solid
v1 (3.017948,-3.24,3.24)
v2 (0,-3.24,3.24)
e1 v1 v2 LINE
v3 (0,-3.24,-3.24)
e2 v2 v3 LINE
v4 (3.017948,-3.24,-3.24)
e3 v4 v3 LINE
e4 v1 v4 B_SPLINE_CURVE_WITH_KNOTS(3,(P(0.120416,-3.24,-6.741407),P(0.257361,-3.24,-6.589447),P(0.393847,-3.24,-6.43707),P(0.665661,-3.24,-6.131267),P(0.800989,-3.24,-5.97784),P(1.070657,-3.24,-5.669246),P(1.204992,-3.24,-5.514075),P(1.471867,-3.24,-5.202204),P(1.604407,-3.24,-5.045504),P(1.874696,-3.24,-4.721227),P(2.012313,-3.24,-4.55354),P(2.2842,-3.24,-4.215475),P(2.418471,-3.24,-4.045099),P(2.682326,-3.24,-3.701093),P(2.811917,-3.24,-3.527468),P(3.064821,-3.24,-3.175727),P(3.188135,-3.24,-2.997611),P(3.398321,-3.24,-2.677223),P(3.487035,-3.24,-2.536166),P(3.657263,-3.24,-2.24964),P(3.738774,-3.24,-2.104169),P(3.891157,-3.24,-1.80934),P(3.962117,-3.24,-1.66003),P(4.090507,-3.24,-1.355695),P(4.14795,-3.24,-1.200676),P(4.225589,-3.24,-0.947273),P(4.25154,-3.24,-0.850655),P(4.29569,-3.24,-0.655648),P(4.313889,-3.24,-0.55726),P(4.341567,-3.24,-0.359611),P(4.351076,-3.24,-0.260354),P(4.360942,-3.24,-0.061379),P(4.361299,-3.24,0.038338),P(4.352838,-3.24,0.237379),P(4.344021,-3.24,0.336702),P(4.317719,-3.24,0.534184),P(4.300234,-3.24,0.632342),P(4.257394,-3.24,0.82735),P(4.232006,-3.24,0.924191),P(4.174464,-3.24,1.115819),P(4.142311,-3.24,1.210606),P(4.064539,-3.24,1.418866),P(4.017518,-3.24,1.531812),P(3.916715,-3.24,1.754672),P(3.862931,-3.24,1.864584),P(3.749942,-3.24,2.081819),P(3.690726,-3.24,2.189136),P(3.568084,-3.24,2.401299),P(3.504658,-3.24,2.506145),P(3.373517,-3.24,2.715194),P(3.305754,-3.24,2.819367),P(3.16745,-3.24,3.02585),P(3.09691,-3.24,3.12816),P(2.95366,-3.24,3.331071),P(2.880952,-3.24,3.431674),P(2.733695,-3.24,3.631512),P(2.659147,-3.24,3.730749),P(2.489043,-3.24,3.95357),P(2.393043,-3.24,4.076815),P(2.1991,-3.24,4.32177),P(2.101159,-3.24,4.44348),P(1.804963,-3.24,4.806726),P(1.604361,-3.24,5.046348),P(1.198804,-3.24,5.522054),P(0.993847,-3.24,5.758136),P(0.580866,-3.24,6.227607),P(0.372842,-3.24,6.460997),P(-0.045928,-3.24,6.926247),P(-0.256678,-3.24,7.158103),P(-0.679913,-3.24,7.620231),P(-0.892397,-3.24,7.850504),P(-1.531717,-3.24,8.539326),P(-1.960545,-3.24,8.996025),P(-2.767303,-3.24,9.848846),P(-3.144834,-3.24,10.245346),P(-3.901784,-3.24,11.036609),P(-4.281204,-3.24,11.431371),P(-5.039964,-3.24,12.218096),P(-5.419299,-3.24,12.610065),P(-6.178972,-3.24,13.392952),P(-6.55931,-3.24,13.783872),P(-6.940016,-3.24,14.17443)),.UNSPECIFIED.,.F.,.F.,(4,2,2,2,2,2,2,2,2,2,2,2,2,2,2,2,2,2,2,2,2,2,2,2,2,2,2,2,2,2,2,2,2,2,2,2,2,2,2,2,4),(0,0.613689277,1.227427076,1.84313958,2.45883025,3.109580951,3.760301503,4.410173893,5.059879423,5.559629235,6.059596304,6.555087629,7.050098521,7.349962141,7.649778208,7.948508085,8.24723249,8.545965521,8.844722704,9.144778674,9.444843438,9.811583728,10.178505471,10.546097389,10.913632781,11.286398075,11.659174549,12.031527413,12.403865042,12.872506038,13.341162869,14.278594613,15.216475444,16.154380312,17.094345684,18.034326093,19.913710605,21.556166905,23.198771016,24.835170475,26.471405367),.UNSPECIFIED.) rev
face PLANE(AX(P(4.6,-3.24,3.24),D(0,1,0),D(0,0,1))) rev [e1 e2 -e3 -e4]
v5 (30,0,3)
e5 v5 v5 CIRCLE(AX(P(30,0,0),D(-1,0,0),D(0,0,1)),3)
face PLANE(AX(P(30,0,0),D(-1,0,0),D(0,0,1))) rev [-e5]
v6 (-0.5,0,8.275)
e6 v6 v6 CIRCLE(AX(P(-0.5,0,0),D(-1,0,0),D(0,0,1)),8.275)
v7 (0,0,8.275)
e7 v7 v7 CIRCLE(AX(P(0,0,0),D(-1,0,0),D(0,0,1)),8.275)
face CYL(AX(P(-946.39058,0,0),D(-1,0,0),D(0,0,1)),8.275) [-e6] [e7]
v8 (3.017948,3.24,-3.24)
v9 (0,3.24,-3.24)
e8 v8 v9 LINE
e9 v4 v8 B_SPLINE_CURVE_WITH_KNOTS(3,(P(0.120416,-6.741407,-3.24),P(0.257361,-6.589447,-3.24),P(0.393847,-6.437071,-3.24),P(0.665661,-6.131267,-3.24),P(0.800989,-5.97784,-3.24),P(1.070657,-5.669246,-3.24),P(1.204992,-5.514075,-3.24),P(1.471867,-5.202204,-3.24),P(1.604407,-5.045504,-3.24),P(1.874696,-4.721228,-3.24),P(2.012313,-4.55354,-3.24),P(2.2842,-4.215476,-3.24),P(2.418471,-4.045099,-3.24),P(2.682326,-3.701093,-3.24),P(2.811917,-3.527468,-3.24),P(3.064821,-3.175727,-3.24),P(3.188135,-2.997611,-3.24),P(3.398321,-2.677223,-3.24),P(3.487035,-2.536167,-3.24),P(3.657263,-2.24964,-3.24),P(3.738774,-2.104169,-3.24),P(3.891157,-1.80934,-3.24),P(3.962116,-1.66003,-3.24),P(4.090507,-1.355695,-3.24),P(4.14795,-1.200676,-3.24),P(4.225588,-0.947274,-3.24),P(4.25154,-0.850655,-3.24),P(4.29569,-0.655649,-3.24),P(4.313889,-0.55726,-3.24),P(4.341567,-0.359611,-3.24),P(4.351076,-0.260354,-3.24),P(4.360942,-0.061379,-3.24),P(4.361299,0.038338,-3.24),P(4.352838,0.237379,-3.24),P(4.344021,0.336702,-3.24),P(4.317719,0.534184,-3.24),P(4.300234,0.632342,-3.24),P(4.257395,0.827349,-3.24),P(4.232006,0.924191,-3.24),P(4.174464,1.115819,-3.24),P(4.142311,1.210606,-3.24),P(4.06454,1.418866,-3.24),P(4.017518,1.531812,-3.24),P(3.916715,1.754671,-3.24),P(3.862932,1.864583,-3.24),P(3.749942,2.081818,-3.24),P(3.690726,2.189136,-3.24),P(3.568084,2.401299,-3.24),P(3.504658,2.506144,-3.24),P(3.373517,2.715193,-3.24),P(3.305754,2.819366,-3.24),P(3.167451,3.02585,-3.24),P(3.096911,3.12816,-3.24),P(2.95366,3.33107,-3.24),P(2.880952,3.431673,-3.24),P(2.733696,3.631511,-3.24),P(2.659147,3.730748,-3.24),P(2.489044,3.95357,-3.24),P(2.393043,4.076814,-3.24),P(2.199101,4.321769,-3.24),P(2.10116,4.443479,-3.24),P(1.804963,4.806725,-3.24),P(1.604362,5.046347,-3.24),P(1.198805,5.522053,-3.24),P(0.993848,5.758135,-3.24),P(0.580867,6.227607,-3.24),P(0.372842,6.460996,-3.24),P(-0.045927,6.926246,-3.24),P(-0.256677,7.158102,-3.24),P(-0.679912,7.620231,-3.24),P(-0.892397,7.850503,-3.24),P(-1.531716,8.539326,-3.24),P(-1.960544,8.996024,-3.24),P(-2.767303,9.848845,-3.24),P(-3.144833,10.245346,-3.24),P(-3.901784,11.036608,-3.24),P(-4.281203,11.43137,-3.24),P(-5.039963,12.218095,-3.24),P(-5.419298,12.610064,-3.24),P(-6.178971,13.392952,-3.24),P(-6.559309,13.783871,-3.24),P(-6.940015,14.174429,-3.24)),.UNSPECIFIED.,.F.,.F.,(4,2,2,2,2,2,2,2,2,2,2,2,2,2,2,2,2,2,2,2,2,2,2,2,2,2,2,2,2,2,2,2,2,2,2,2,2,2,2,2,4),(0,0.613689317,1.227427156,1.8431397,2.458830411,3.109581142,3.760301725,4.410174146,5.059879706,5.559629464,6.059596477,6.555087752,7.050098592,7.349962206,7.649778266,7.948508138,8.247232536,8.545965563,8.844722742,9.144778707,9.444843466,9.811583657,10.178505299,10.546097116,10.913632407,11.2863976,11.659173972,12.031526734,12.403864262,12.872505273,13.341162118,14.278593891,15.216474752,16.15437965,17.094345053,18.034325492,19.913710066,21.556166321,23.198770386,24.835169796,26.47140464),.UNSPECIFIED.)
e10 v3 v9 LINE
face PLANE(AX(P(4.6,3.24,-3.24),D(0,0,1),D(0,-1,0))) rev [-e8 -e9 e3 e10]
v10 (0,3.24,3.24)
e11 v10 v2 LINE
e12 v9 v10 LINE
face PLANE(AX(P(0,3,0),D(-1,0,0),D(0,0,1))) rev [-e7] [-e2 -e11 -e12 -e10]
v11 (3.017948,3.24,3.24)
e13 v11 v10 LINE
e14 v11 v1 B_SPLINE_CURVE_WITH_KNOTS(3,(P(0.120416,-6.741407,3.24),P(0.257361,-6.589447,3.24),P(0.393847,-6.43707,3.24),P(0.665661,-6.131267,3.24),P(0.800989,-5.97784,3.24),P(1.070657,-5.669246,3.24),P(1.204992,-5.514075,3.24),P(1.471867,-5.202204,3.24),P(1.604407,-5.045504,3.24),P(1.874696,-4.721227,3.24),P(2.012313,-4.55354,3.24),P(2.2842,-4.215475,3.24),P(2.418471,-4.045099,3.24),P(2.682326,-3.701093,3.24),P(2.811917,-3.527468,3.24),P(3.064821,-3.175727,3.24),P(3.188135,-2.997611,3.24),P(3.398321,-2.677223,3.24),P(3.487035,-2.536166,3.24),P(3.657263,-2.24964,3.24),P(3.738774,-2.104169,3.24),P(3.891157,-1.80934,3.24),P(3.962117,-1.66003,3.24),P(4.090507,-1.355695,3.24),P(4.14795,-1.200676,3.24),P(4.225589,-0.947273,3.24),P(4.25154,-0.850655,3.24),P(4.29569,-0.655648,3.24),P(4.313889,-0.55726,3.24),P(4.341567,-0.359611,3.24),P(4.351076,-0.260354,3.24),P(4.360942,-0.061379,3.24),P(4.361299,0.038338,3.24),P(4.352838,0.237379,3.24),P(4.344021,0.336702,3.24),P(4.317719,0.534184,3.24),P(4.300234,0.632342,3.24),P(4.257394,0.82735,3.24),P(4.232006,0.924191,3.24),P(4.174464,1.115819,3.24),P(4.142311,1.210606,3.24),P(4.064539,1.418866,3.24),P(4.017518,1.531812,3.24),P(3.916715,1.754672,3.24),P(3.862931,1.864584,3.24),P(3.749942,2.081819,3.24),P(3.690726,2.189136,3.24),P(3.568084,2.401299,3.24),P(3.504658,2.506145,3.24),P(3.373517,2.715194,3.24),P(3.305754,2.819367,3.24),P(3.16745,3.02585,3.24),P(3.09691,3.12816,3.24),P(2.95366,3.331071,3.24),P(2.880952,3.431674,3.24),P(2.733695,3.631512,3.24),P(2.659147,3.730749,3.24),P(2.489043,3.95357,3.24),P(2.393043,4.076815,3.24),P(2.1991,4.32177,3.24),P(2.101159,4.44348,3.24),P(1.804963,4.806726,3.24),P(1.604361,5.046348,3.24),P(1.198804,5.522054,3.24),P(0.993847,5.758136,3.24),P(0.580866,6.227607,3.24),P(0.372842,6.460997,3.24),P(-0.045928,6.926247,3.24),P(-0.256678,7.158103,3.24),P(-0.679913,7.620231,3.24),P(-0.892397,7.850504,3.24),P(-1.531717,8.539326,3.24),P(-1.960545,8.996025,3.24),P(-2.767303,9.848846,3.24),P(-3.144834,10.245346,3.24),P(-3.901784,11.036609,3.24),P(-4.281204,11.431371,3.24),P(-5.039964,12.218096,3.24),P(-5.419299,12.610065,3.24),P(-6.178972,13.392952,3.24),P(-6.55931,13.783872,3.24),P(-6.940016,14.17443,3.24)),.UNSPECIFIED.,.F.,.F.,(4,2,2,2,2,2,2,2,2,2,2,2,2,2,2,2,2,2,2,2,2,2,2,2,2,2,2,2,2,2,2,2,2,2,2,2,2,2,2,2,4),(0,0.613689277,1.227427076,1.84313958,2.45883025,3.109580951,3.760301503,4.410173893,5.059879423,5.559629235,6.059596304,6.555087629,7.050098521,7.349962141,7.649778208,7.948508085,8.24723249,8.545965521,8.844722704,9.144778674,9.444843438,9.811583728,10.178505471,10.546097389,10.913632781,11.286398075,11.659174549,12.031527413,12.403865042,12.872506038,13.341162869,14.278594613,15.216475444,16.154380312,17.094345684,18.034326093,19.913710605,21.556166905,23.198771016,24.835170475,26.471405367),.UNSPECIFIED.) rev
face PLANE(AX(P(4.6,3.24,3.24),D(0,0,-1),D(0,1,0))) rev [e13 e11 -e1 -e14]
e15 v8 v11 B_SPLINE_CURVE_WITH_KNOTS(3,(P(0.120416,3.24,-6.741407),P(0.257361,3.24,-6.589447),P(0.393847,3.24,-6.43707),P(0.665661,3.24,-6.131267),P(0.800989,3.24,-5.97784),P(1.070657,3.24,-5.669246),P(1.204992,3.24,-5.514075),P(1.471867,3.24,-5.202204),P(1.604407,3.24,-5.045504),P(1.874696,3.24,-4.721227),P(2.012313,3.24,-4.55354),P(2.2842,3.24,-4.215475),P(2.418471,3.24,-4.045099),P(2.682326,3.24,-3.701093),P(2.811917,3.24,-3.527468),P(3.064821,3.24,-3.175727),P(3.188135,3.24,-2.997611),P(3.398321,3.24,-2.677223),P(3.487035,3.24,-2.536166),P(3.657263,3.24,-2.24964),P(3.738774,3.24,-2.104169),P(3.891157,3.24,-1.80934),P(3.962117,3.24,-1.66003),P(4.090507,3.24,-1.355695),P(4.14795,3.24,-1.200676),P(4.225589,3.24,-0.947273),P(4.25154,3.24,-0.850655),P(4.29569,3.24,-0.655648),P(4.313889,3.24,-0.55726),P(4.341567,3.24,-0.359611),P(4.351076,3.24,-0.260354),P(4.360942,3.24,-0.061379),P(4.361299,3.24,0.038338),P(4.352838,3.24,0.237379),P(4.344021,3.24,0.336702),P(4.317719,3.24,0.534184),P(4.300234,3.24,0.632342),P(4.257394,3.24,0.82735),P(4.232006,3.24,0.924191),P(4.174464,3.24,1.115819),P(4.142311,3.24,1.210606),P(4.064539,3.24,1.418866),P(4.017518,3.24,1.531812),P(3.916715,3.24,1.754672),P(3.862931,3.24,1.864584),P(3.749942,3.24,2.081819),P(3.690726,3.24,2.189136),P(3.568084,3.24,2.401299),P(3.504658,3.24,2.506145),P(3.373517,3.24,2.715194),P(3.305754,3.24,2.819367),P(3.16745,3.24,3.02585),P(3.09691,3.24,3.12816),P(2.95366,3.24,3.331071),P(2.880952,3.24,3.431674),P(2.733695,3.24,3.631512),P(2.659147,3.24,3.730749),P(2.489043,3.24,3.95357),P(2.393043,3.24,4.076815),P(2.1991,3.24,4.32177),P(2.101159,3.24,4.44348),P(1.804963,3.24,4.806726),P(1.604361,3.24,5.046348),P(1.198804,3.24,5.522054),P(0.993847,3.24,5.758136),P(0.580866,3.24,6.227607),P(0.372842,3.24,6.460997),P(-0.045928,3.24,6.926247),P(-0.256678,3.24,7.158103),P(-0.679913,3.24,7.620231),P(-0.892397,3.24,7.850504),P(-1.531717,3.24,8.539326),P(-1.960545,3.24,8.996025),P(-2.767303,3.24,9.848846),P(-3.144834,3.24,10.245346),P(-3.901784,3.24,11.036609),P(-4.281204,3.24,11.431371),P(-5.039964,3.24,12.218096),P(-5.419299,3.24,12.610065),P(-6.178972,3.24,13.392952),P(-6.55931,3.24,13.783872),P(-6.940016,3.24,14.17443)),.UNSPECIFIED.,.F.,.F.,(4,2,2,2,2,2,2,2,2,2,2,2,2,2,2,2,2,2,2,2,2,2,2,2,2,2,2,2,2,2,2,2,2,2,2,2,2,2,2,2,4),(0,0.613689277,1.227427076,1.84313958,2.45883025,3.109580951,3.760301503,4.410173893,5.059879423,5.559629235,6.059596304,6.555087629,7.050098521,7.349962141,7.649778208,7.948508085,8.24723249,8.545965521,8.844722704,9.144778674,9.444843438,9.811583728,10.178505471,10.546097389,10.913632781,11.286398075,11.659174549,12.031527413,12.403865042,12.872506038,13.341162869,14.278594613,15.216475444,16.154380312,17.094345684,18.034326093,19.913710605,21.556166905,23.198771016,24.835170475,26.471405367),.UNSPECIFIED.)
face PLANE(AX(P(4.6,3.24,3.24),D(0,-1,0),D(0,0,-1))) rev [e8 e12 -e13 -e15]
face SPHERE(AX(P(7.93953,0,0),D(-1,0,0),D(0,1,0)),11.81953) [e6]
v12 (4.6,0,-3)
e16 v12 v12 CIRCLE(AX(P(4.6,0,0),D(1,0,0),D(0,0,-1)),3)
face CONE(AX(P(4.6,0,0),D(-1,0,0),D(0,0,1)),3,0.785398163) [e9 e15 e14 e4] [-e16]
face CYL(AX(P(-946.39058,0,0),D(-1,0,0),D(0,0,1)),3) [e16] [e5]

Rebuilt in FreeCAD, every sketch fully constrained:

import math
import FreeCAD as App
import Part
import Sketcher
from FreeCAD import Vector


def add_polygon(sketch, points):
    """Adds a closed chain of lines whose ends are joined by coincident constraints."""
    first, n = sketch.GeometryCount, len(points)
    for a, b in zip(points, points[1:] + points[:1]):
        sketch.addGeometry(Part.LineSegment(App.Vector(*a, 0), App.Vector(*b, 0)), False)
    for i in range(n):
        sketch.addConstraint(Sketcher.Constraint("Coincident", first + i, 2, first + (i + 1) % n, 1))

doc = App.newDocument("Part")
body = doc.addObject("PartDesign::Body", "Body")

# Sketch on XY plane
sketch1 = body.newObject("Sketcher::SketchObject", "Sketch")
sketch1.AttachmentSupport = (doc.getObject("XY_Plane"), [""])
sketch1.MapMode = "FlatFace"
sketch1.addGeometry([
    Part.LineSegment(Vector(-3.9, 0, 0), Vector(30, 0, 0)),  # 0
    Part.LineSegment(Vector(30, 0, 0), Vector(30, 3, 0)),  # 1
    Part.LineSegment(Vector(30, 3, 0), Vector(0, 3, 0)),  # 2
    Part.LineSegment(Vector(0, 3, 0), Vector(0, 8.3, 0)),  # 3
    Part.LineSegment(Vector(0, 8.3, 0), Vector(-0.5, 8.3, 0)),  # 4
    Part.ArcOfCircle(Part.Circle(Vector(7.9, 0, 0), Vector(0, 0, 1), 11.8), math.radians(136), math.radians(180)),  # 5
], False)
sketch1.addConstraint([
    Sketcher.Constraint("Coincident", 0, 2, 1, 1),
    Sketcher.Constraint("Coincident", 1, 2, 2, 1),
    Sketcher.Constraint("Coincident", 2, 2, 3, 1),
    Sketcher.Constraint("Coincident", 3, 2, 4, 1),
    Sketcher.Constraint("Coincident", 4, 2, 5, 1),
    Sketcher.Constraint("Coincident", 5, 2, 0, 1),
    Sketcher.Constraint("Horizontal", 0),
    Sketcher.Constraint("Vertical", 1),
    Sketcher.Constraint("Horizontal", 2),
    Sketcher.Constraint("Vertical", 3),
    Sketcher.Constraint("Horizontal", 4),
    Sketcher.Constraint("PointOnObject", 5, 3, -1),
    Sketcher.Constraint("PointOnObject", 0, 2, -1),
    Sketcher.Constraint("PointOnObject", 2, 2, -2),
    Sketcher.Constraint("DistanceX", 2, 2, 2, 1, 30.0),
    Sketcher.Constraint("DistanceY", 1, 1, 1, 2, 3.0),
    Sketcher.Constraint("DistanceX", 4, 2, 4, 1, 0.5),
    Sketcher.Constraint("DistanceX", 0, 1, 0, 2, 33.88),
    Sketcher.Constraint("DistanceY", 3, 1, 3, 2, 5.275),
])
revolution = body.newObject("PartDesign::Revolution", "Revolution")
revolution.Profile = sketch1
revolution.ReferenceAxis = (sketch1, ["H_Axis"])
revolution.Angle = 360

# Sketch on YZ plane
sketch2 = body.newObject("Sketcher::SketchObject", "Sketch001")
sketch2.AttachmentSupport = (doc.getObject("YZ_Plane"), [""])
sketch2.MapMode = "FlatFace"
add_polygon(sketch2, [(3, 3), (-3, 3), (-3, -3), (3, -3)])  # lines 0-3
sketch2.addConstraint([
    Sketcher.Constraint("Horizontal", 0),
    Sketcher.Constraint("Vertical", 1),
    Sketcher.Constraint("Horizontal", 2),
    Sketcher.Constraint("Vertical", 3),
    Sketcher.Constraint("Symmetric", 0, 2, 2, 2, -1, 1),
    Sketcher.Constraint("Equal", 2, 1),
    Sketcher.Constraint("DistanceX", 0, 2, 0, 1, 6.48),
])
pad1 = body.newObject("PartDesign::Pad", "Pad")
pad1.Profile = sketch2
pad1.Length = 4.6
body2 = doc.addObject("PartDesign::Body", "Body001")

# Sketch on an angled plane
sketch3 = body2.newObject("Sketcher::SketchObject", "Sketch002")
sketch3.Placement = App.Placement(Vector(0, 0, 0), App.Rotation(Vector(-1, 0, 0), Vector(0, -0.707106781, -0.707106781), Vector(0, -0.707106781, 0.707106781), "ZXY"))
add_polygon(sketch3, [(-4.6, 3), (-2, 5.6), (-7.2, 5.6)])  # lines 0-2
sketch3.addConstraint([
    Sketcher.Constraint("Horizontal", 1),
    Sketcher.Constraint("Perpendicular", 0, 2),
    Sketcher.Constraint("Equal", 0, 2),
    Sketcher.Constraint("DistanceY", -1, 1, 2, 2, 3.0),
    Sketcher.Constraint("DistanceX", 2, 2, -1, 1, 4.6),
    Sketcher.Constraint("DistanceX", 1, 2, 1, 1, 5.164104),
])
revolution2 = body2.newObject("PartDesign::Revolution", "Revolution001")
revolution2.Profile = sketch3
revolution2.ReferenceAxis = (sketch3, ["H_Axis"])
revolution2.Angle = 360
doc.recompute()

boolean = body.newObject("PartDesign::Boolean", "Boolean")
boolean.Type = "Cut"
boolean.addObjects([body2])

doc.recompute()
